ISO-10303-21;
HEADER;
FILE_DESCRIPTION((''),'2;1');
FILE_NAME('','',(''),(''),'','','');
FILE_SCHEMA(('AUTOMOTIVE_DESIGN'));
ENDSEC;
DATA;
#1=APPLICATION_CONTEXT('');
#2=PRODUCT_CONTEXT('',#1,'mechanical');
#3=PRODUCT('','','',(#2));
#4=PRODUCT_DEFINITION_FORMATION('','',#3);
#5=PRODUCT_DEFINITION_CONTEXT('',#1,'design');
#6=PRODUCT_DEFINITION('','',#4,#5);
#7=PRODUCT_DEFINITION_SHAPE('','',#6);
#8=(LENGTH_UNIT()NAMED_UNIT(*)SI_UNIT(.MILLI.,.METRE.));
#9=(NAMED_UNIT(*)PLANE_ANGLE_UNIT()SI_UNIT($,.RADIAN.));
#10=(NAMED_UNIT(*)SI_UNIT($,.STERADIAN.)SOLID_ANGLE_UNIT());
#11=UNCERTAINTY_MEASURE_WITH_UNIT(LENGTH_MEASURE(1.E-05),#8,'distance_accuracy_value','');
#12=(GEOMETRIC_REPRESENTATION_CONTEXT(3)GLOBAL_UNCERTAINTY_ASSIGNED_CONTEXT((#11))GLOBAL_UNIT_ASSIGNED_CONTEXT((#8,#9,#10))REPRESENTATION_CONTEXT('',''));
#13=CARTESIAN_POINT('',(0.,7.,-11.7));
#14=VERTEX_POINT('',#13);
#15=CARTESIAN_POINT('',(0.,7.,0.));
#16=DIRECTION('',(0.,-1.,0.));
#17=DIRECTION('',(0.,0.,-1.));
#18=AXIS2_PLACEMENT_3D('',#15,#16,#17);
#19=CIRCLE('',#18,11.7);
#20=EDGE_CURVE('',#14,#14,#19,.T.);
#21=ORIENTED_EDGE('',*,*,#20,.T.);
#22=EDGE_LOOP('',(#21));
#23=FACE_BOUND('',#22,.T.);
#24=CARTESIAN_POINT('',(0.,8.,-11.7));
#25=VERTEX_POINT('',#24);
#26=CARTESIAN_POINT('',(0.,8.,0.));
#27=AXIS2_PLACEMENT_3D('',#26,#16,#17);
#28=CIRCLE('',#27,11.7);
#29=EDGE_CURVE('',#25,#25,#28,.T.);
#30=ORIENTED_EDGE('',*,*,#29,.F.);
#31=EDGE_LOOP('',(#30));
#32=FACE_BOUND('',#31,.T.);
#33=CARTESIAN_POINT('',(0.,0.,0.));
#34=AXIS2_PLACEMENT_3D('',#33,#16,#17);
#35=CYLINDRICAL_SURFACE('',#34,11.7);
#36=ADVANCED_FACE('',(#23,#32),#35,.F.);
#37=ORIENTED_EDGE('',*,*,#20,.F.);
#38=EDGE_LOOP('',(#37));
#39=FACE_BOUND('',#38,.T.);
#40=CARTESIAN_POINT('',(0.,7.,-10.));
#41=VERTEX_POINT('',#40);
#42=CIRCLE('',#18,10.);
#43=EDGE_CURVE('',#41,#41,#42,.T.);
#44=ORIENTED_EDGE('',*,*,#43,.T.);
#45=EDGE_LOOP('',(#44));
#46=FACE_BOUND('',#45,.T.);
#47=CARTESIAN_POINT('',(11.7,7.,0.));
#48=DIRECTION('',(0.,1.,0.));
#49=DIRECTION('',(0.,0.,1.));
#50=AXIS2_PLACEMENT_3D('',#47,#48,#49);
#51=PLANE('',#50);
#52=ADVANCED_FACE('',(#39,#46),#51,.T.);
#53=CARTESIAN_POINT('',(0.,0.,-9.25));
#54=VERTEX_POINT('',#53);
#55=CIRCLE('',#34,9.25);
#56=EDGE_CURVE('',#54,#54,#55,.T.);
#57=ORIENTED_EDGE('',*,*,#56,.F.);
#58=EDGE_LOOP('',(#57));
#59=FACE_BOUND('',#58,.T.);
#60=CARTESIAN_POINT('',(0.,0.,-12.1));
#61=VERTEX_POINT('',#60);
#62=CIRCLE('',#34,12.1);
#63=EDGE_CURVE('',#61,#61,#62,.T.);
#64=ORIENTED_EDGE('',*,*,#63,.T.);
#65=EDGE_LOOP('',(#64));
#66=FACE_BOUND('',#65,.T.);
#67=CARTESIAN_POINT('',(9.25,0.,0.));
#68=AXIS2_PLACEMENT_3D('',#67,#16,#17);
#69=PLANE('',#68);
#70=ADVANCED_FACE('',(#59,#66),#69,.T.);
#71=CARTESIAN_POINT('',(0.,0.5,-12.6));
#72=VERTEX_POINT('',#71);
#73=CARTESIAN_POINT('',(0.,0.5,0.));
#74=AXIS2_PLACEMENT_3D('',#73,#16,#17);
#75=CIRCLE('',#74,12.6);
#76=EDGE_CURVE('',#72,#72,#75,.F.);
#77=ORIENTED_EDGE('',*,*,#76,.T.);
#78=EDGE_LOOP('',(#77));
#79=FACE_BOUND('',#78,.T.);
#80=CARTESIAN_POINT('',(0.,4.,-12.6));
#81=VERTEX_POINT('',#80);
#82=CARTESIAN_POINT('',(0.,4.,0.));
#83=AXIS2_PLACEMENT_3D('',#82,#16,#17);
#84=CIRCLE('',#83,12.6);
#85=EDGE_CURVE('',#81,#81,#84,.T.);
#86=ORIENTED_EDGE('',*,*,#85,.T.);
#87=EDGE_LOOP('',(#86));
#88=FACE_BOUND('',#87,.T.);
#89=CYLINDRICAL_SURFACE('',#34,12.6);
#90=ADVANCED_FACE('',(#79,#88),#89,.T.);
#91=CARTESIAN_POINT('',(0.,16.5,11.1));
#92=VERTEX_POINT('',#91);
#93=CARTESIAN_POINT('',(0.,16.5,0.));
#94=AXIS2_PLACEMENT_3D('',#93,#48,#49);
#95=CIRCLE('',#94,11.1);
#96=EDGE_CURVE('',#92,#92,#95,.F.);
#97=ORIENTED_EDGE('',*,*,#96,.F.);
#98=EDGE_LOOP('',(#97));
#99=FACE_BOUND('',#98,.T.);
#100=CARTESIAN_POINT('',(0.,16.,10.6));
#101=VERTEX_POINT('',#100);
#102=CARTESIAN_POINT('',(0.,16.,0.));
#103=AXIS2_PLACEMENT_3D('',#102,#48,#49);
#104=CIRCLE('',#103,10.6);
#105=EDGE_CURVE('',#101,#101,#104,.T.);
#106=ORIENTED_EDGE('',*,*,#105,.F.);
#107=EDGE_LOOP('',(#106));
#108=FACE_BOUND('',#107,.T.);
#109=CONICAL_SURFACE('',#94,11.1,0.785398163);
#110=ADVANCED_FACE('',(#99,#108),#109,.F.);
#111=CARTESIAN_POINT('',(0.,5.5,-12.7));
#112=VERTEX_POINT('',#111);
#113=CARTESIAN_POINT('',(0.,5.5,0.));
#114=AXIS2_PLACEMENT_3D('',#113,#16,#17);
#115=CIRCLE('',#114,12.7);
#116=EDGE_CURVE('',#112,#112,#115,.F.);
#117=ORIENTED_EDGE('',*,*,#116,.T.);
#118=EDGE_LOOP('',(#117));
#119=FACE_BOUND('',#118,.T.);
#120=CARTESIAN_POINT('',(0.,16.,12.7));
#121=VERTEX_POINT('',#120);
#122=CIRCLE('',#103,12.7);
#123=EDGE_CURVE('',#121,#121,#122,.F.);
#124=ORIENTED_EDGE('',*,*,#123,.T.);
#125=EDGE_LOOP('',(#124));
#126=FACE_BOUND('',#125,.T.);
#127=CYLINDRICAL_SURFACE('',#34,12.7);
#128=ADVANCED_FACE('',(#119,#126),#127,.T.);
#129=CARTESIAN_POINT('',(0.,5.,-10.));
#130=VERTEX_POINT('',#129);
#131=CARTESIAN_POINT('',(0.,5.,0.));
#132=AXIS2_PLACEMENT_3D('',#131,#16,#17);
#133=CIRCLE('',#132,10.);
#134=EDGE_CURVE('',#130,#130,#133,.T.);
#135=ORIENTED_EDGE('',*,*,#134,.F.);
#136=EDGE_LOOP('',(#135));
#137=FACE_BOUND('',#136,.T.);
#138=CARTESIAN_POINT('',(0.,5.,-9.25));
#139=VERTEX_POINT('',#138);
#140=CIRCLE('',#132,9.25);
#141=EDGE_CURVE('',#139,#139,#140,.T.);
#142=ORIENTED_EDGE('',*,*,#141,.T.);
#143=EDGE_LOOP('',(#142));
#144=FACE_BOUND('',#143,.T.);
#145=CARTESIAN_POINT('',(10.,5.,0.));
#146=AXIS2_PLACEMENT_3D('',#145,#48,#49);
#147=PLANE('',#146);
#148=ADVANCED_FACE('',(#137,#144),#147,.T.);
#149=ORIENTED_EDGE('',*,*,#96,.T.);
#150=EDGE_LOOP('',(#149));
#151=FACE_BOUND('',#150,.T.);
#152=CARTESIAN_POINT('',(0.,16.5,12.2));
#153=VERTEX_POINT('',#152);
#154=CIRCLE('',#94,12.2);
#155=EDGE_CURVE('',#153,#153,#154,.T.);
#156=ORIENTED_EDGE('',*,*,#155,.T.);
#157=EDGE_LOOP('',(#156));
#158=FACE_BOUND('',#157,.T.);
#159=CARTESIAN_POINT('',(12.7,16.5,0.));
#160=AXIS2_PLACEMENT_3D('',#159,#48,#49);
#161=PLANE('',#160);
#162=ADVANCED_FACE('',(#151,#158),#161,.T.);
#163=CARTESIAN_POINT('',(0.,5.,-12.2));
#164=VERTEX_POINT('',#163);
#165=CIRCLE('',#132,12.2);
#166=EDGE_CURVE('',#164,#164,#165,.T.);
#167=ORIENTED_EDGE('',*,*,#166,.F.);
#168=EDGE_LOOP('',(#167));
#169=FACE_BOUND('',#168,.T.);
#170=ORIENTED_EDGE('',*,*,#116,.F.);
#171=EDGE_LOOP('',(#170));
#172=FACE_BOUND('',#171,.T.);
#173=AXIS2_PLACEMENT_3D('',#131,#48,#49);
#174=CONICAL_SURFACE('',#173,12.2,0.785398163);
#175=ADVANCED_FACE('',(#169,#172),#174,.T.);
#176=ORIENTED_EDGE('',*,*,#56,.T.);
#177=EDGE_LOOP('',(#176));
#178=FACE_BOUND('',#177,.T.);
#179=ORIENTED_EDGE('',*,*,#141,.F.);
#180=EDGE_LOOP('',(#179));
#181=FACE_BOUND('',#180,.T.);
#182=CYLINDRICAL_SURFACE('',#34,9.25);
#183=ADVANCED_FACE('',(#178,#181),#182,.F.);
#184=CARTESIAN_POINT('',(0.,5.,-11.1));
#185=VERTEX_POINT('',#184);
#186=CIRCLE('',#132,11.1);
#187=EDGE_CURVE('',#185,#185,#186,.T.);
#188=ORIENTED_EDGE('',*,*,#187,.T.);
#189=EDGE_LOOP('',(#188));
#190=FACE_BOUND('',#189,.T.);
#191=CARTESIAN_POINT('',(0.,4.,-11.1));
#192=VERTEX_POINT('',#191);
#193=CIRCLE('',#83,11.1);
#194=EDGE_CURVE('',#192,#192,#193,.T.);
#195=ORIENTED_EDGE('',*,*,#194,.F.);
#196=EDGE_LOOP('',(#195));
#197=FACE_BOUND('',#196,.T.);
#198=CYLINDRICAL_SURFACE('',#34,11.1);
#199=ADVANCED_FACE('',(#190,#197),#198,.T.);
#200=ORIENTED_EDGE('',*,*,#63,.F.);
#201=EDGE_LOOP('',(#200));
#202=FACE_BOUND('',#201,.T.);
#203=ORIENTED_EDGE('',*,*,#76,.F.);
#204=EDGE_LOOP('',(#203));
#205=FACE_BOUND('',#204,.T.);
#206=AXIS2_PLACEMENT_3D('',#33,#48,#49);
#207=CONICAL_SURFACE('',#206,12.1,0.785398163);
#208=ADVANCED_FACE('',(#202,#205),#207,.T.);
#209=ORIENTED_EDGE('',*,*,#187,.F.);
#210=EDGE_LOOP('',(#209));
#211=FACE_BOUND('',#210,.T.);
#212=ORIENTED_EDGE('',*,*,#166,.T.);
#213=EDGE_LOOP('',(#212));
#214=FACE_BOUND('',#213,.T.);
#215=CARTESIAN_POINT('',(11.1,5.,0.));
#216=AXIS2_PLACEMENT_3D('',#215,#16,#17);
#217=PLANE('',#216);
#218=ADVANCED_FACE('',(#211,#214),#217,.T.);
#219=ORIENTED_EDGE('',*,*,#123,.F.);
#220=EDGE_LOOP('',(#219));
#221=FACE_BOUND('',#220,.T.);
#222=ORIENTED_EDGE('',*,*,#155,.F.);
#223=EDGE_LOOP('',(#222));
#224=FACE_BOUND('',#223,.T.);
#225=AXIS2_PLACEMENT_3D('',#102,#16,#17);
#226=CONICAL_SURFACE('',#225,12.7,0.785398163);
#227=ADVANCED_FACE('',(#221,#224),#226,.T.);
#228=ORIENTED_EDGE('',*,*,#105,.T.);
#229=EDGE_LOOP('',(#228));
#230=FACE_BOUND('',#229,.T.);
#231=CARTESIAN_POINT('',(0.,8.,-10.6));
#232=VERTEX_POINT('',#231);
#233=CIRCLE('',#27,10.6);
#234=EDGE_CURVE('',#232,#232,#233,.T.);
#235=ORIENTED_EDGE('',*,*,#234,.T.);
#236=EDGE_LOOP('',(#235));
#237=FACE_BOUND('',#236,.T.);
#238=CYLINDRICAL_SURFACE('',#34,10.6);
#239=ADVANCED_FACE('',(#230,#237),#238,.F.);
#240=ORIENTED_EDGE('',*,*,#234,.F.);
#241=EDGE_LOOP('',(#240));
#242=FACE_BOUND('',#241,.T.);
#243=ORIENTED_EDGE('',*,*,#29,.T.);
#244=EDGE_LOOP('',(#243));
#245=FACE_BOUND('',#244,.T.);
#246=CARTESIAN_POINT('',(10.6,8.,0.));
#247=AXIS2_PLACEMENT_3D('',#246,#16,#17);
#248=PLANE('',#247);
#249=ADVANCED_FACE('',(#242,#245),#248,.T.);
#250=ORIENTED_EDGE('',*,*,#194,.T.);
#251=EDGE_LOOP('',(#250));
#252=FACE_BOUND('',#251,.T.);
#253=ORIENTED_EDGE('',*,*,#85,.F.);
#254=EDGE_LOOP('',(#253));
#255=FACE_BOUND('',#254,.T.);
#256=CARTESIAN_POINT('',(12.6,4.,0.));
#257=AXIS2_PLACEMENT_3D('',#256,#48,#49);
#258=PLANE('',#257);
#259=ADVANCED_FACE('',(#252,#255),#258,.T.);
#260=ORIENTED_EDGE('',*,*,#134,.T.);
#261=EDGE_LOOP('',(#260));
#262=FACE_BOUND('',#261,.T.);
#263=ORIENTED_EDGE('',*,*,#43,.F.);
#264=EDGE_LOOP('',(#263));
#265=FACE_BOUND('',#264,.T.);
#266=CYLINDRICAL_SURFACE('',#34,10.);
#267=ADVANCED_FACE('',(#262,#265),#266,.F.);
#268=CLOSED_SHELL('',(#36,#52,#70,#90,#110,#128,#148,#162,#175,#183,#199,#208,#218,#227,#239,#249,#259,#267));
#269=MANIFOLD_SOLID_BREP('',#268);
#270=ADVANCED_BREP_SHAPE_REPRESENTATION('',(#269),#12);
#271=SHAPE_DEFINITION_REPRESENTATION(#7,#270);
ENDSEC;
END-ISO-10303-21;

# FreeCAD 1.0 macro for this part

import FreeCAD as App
import Part
import Sketcher
from FreeCAD import Vector


def edges_at(feature, points):
    """Names of the edges that pass closest to the given points."""
    edges = feature.Shape.Edges
    near = lambda p: min(range(len(edges)), key=lambda i: edges[i].distToShape(Part.Vertex(*p))[0])
    return sorted({f"Edge{near(p) + 1}" for p in points})


def add_polygon(sketch, points):
    """Adds a closed chain of lines whose ends are joined by coincident constraints."""
    first, n = sketch.GeometryCount, len(points)
    for a, b in zip(points, points[1:] + points[:1]):
        sketch.addGeometry(Part.LineSegment(App.Vector(*a, 0), App.Vector(*b, 0)), False)
    for i in range(n):
        sketch.addConstraint(Sketcher.Constraint("Coincident", first + i, 2, first + (i + 1) % n, 1))

doc = App.newDocument("Part")
body = doc.addObject("PartDesign::Body", "Body")

sketch1 = body.newObject("Sketcher::SketchObject", "Sketch")
sketch1.AttachmentSupport = (doc.getObject("XY_Plane"), [""])
sketch1.MapMode = "FlatFace"
add_polygon(sketch1, [(9.25, 0), (12.6, 0), (12.6, 4), (11.1, 4), (11.1, 5), (12.7, 5), (12.7, 16.5), (10.6, 16.5), (10.6, 8), (11.7, 8), (11.7, 7), (10, 7), (10, 5), (9.25, 5)])
sketch1.addConstraint(Sketcher.Constraint("Horizontal", 0))
sketch1.addConstraint(Sketcher.Constraint("Vertical", 1))
sketch1.addConstraint(Sketcher.Constraint("Horizontal", 2))
sketch1.addConstraint(Sketcher.Constraint("Vertical", 3))
sketch1.addConstraint(Sketcher.Constraint("Horizontal", 4))
sketch1.addConstraint(Sketcher.Constraint("Vertical", 5))
sketch1.addConstraint(Sketcher.Constraint("Horizontal", 6))
sketch1.addConstraint(Sketcher.Constraint("Vertical", 7))
sketch1.addConstraint(Sketcher.Constraint("Horizontal", 8))
sketch1.addConstraint(Sketcher.Constraint("Vertical", 9))
sketch1.addConstraint(Sketcher.Constraint("Horizontal", 10))
sketch1.addConstraint(Sketcher.Constraint("Vertical", 11))
sketch1.addConstraint(Sketcher.Constraint("Horizontal", 12))
sketch1.addConstraint(Sketcher.Constraint("Vertical", 13))
sketch1.addConstraint(Sketcher.Constraint("PointOnObject", 0, 2, -1))
sketch1.addConstraint(Sketcher.Constraint("Horizontal", 4, 2, 11, 2))
sketch1.addConstraint(Sketcher.Constraint("Equal", 3, 9))
sketch1.addConstraint(Sketcher.Constraint("DistanceY", 1, 1, 1, 2, 4.0))
sketch1.addConstraint(Sketcher.Constraint("DistanceY", 3, 1, 3, 2, 1.0))
sketch1.addConstraint(Sketcher.Constraint("DistanceY", 11, 2, 11, 1, 2.0))
sketch1.addConstraint(Sketcher.Constraint("DistanceX", 2, 2, 2, 1, 1.5))
sketch1.addConstraint(Sketcher.Constraint("DistanceX", 4, 1, 4, 2, 1.6))
sketch1.addConstraint(Sketcher.Constraint("DistanceX", 6, 2, 6, 1, 2.1))
sketch1.addConstraint(Sketcher.Constraint("DistanceX", 8, 1, 8, 2, 1.1))
sketch1.addConstraint(Sketcher.Constraint("DistanceX", 10, 2, 10, 1, 1.7))
sketch1.addConstraint(Sketcher.Constraint("DistanceY", 5, 1, 5, 2, 11.5))
sketch1.addConstraint(Sketcher.Constraint("DistanceX", -1, 1, 10, 2, 10.0))
sketch1.addConstraint(Sketcher.Constraint("DistanceX", 0, 1, 0, 2, 3.35))
revolution = body.newObject("PartDesign::Revolution", "Revolution")
revolution.Profile = sketch1
revolution.ReferenceAxis = (sketch1, ["V_Axis"])
revolution.Angle = 360
doc.recompute()

chamfer = body.newObject("PartDesign::Chamfer", "Chamfer")
chamfer.Base = (revolution, edges_at(revolution, [
    (0, 16.5, 10.6),
    (0, 16.5, 12.7),
    (0, 5, 12.7),
    (0, 0, 12.6),
]))
chamfer.Size = 0.5

doc.recompute()
